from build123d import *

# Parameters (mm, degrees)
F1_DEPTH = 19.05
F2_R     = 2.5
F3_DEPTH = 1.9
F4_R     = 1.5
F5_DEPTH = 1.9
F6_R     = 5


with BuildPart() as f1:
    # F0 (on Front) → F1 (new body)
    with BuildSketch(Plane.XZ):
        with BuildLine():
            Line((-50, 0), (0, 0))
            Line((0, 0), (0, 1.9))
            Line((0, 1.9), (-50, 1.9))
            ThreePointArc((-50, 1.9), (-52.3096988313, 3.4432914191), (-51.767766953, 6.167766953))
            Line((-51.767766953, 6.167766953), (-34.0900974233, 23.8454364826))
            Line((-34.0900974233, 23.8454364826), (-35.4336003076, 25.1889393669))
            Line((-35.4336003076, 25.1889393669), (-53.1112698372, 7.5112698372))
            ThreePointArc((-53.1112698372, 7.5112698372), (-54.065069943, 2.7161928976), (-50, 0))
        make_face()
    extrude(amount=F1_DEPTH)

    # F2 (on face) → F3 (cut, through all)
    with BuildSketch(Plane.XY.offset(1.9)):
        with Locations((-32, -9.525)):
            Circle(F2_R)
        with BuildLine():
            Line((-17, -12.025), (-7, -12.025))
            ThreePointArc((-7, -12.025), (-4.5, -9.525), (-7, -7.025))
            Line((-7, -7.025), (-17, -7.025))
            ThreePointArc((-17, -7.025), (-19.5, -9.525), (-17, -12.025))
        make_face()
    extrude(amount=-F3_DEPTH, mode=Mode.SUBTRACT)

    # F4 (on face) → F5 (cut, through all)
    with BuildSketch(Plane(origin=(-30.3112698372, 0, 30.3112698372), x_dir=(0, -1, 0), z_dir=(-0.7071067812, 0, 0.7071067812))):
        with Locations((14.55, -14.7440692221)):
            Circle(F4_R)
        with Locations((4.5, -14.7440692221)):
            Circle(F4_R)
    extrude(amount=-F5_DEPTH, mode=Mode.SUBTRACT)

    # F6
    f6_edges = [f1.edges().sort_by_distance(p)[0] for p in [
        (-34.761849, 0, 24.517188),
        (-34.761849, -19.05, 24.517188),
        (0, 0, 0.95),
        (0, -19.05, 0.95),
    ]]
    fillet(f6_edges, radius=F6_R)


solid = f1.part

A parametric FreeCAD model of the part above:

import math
import FreeCAD as App
import Part
import Sketcher
from FreeCAD import Vector
Q = App.Units.Quantity


def edges_at(feature, points):
    """Names of the edges that pass closest to the given points."""
    edges = feature.Shape.Edges
    near = lambda p: min(range(len(edges)), key=lambda i: edges[i].distToShape(Part.Vertex(*p))[0])
    return sorted({f"Edge{near(p) + 1}" for p in points})

doc = App.newDocument("Part")
body = doc.addObject("PartDesign::Body", "Body")

# Sketch on XZ plane
sketch1 = body.newObject("Sketcher::SketchObject", "Sketch")
sketch1.AttachmentSupport = (doc.getObject("XZ_Plane"), [""])
sketch1.MapMode = "FlatFace"
sketch1.addGeometry([
    Part.LineSegment(Vector(-50, 0, 0), Vector(0, 0, 0)),  # 0
    Part.LineSegment(Vector(0, 0, 0), Vector(0, 1.9, 0)),  # 1
    Part.LineSegment(Vector(0, 1.9, 0), Vector(-50, 1.9, 0)),  # 2
    Part.ArcOfCircle(Part.Circle(Vector(-50, 4.4, 0), Vector(0, 0, 1), 2.5), math.radians(135), math.radians(270)),  # 3
    Part.LineSegment(Vector(-51.8, 6.2, 0), Vector(-34.1, 23.8, 0)),  # 4
    Part.LineSegment(Vector(-34.1, 23.8, 0), Vector(-35.4, 25.2, 0)),  # 5
    Part.LineSegment(Vector(-35.4, 25.2, 0), Vector(-53.1, 7.5, 0)),  # 6
    Part.ArcOfCircle(Part.Circle(Vector(-50, 4.4, 0), Vector(0, 0, 1), 4.4), math.radians(135), math.radians(270)),  # 7
], False)
sketch1.addConstraint([
    Sketcher.Constraint("Coincident", 0, 2, 1, 1),
    Sketcher.Constraint("Coincident", 1, 2, 2, 1),
    Sketcher.Constraint("Tangent", 2, 2, 3, 2),
    Sketcher.Constraint("Tangent", 3, 1, 4, 1),
    Sketcher.Constraint("Coincident", 4, 2, 5, 1),
    Sketcher.Constraint("Coincident", 5, 2, 6, 1),
    Sketcher.Constraint("Tangent", 6, 2, 7, 1),
    Sketcher.Constraint("Tangent", 7, 2, 0, 1),
    Sketcher.Constraint("Horizontal", 0),
    Sketcher.Constraint("Vertical", 1),
    Sketcher.Constraint("Horizontal", 2),
    Sketcher.Constraint("Coincident", 0, 2, -1, 1),
    Sketcher.Constraint("Coincident", 7, 3, 3, 3),
    Sketcher.Constraint("Perpendicular", 4, 5),
    Sketcher.Constraint("Perpendicular", 5, 6),
    Sketcher.Constraint("Radius", 3, Q("2.5 mm")),
    Sketcher.Constraint("Radius", 7, Q("4.4 mm")),
    Sketcher.Constraint("DistanceX", 0, 1, 0, 2, Q("50 mm")),
    Sketcher.Constraint("Angle", 4, Q("45 deg")),
    Sketcher.Constraint("Distance", 4, Q("25 mm")),
])
pad1 = body.newObject("PartDesign::Pad", "Pad")
pad1.Profile = sketch1
pad1.Length = 19.05

# Sketch on XY plane
sketch2 = body.newObject("Sketcher::SketchObject", "Sketch001")
sketch2.AttachmentSupport = (doc.getObject("XY_Plane"), [""])
sketch2.MapMode = "FlatFace"
sketch2.AttachmentOffset = App.Placement(Vector(0, 0, 1.9), App.Rotation())
sketch2.addGeometry([
    Part.Circle(Vector(-32, -9.5, 0), Vector(0, 0, 1), 2.5),  # 0
    Part.LineSegment(Vector(-17, -12, 0), Vector(-7, -12, 0)),  # 1
    Part.ArcOfCircle(Part.Circle(Vector(-7, -9.5, 0), Vector(0, 0, 1), 2.5), math.radians(-90), math.radians(90)),  # 2
    Part.LineSegment(Vector(-7, -7, 0), Vector(-17, -7, 0)),  # 3
    Part.ArcOfCircle(Part.Circle(Vector(-17, -9.5, 0), Vector(0, 0, 1), 2.5), math.radians(90), math.radians(270)),  # 4
], False)
sketch2.addConstraint([
    Sketcher.Constraint("Tangent", 1, 2, 2, 1),
    Sketcher.Constraint("Tangent", 2, 2, 3, 1),
    Sketcher.Constraint("Tangent", 3, 2, 4, 1),
    Sketcher.Constraint("Tangent", 4, 2, 1, 1),
    Sketcher.Constraint("Horizontal", 1),
    Sketcher.Constraint("Horizontal", 3),
    Sketcher.Constraint("Equal", 0, 2),
    Sketcher.Constraint("Horizontal", 0, 3, 2, 3),
    Sketcher.Constraint("Diameter", 0, Q("5 mm")),
    Sketcher.Constraint("DistanceX", 1, 1, 1, 2, Q("10 mm")),
    Sketcher.Constraint("DistanceX", 0, 3, -1, 1, Q("32 mm")),
    Sketcher.Constraint("DistanceX", 2, 3, -1, 1, Q("7 mm")),
    Sketcher.Constraint("DistanceY", 0, 3, -1, 1, Q("9.525 mm")),
])
pocket1 = body.newObject("PartDesign::Pocket", "Pocket")
pocket1.Profile = sketch2
pocket1.Type = "ThroughAll"

# Sketch on an angled plane
sketch3 = body.newObject("Sketcher::SketchObject", "Sketch002")
sketch3.Placement = App.Placement(Vector(-30.31127, 0, 30.31127), App.Rotation(Vector(0, -1, 0), Vector(0.707106781, 0, 0.707106781), Vector(-0.707106781, 0, 0.707106781), "ZXY"))
sketch3.addGeometry([
    Part.Circle(Vector(14.6, -14.7, 0), Vector(0, 0, 1), 1.5),
    Part.Circle(Vector(4.5, -14.7, 0), Vector(0, 0, 1), 1.5),
], False)
sketch3.addConstraint([
    Sketcher.Constraint("Equal", 0, 1),
    Sketcher.Constraint("Horizontal", 0, 3, 1, 3),
    Sketcher.Constraint("Diameter", 0, Q("3 mm")),
    Sketcher.Constraint("DistanceX", -1, 1, 1, 3, Q("4.5 mm")),
    Sketcher.Constraint("DistanceX", -1, 1, 0, 3, Q("14.55 mm")),
    Sketcher.Constraint("DistanceY", 0, 3, -1, 1, Q("14.744069 mm")),
])
pocket2 = body.newObject("PartDesign::Pocket", "Pocket001")
pocket2.Profile = sketch3
pocket2.Length = 1.9
doc.recompute()

fillet = body.newObject("PartDesign::Fillet", "Fillet")
fillet.Base = (pocket2, edges_at(pocket2, [
    (-34.762, 0, 24.517),
    (-34.762, -19.05, 24.517),
    (0, 0, 0.95),
    (0, -19.05, 0.95),
]))
fillet.Radius = 5

doc.recompute()
